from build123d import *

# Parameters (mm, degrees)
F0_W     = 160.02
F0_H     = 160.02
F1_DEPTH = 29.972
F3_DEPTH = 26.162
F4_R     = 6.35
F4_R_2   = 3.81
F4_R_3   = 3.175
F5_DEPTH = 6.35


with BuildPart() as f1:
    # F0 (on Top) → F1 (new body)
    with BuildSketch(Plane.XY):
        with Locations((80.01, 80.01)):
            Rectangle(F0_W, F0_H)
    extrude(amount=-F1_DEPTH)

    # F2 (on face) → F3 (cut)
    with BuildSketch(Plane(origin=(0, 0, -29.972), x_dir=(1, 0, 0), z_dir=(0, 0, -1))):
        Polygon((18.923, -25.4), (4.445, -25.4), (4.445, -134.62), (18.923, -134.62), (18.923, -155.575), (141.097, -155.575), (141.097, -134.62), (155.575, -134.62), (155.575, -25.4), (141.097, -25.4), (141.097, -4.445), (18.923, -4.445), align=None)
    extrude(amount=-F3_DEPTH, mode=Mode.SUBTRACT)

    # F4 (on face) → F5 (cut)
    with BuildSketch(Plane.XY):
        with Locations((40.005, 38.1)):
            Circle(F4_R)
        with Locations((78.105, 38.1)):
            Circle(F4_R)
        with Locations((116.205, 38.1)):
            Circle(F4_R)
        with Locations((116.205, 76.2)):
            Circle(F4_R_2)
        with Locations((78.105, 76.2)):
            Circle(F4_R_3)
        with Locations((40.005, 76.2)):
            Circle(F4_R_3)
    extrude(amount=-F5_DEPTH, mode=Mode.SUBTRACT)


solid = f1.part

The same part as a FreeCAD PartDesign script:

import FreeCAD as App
import Part
import Sketcher
Q = App.Units.Quantity

doc = App.newDocument("Part")
body = doc.addObject("PartDesign::Body", "Body")

sketch1 = body.newObject("Sketcher::SketchObject", "Sketch")
sketch1.AttachmentSupport = (doc.getObject("XY_Plane"), [""])
sketch1.MapMode = "FlatFace"
sketch1.addGeometry([
    Part.LineSegment(App.Vector(0, 160.02, 0), App.Vector(0, 0, 0)),
    Part.LineSegment(App.Vector(0, 0, 0), App.Vector(160.02, 0, 0)),
    Part.LineSegment(App.Vector(160.02, 0, 0), App.Vector(160.02, 160.02, 0)),
    Part.LineSegment(App.Vector(160.02, 160.02, 0), App.Vector(0, 160.02, 0)),
], False)
sketch1.addConstraint([
    Sketcher.Constraint("Coincident", 0, 2, 1, 1),
    Sketcher.Constraint("Coincident", 1, 2, 2, 1),
    Sketcher.Constraint("Coincident", 2, 2, 3, 1),
    Sketcher.Constraint("Coincident", 3, 2, 0, 1),
    Sketcher.Constraint("Vertical", 0),
    Sketcher.Constraint("Horizontal", 1),
    Sketcher.Constraint("Vertical", 2),
    Sketcher.Constraint("Horizontal", 3),
    Sketcher.Constraint("Coincident", 0, 2, -1, 1),
    Sketcher.Constraint("Equal", 3, 0),
    Sketcher.Constraint("DistanceX", 1, 1, 1, 2, Q("6.3 in")),
])
pad1 = body.newObject("PartDesign::Pad", "Pad")
pad1.Profile = sketch1
pad1.Length = Q("1.18 in")
pad1.Reversed = True

sketch2 = body.newObject("Sketcher::SketchObject", "Sketch001")
sketch2.AttachmentSupport = (doc.getObject("XY_Plane"), [""])
sketch2.MapMode = "FlatFace"
sketch2.AttachmentOffset = App.Placement(App.Vector(0, 0, -1.18 * 25.4), App.Rotation())
sketch2.addGeometry([
    Part.LineSegment(App.Vector(18.923, 25.4, 0), App.Vector(4.445, 25.4, 0)),
    Part.LineSegment(App.Vector(4.445, 25.4, 0), App.Vector(4.445, 134.62, 0)),
    Part.LineSegment(App.Vector(4.445, 134.62, 0), App.Vector(18.923, 134.62, 0)),
    Part.LineSegment(App.Vector(18.923, 134.62, 0), App.Vector(18.923, 155.575, 0)),
    Part.LineSegment(App.Vector(18.923, 155.575, 0), App.Vector(141.097, 155.575, 0)),
    Part.LineSegment(App.Vector(141.097, 155.575, 0), App.Vector(141.097, 134.62, 0)),
    Part.LineSegment(App.Vector(141.097, 134.62, 0), App.Vector(155.575, 134.62, 0)),
    Part.LineSegment(App.Vector(155.575, 134.62, 0), App.Vector(155.575, 25.4, 0)),
    Part.LineSegment(App.Vector(155.575, 25.4, 0), App.Vector(141.097, 25.4, 0)),
    Part.LineSegment(App.Vector(141.097, 25.4, 0), App.Vector(141.097, 4.445, 0)),
    Part.LineSegment(App.Vector(141.097, 4.445, 0), App.Vector(18.923, 4.445, 0)),
    Part.LineSegment(App.Vector(18.923, 4.445, 0), App.Vector(18.923, 25.4, 0)),
], False)
sketch2.addConstraint([
    Sketcher.Constraint("Coincident", 0, 2, 1, 1),
    Sketcher.Constraint("Coincident", 1, 2, 2, 1),
    Sketcher.Constraint("Coincident", 2, 2, 3, 1),
    Sketcher.Constraint("Coincident", 3, 2, 4, 1),
    Sketcher.Constraint("Coincident", 4, 2, 5, 1),
    Sketcher.Constraint("Coincident", 5, 2, 6, 1),
    Sketcher.Constraint("Coincident", 6, 2, 7, 1),
    Sketcher.Constraint("Coincident", 7, 2, 8, 1),
    Sketcher.Constraint("Coincident", 8, 2, 9, 1),
    Sketcher.Constraint("Coincident", 9, 2, 10, 1),
    Sketcher.Constraint("Coincident", 10, 2, 11, 1),
    Sketcher.Constraint("Coincident", 11, 2, 0, 1),
    Sketcher.Constraint("Horizontal", 0),
    Sketcher.Constraint("Vertical", 1),
    Sketcher.Constraint("Horizontal", 2),
    Sketcher.Constraint("Vertical", 3),
    Sketcher.Constraint("Horizontal", 4),
    Sketcher.Constraint("Vertical", 5),
    Sketcher.Constraint("Horizontal", 6),
    Sketcher.Constraint("Vertical", 7),
    Sketcher.Constraint("Horizontal", 8),
    Sketcher.Constraint("Vertical", 9),
    Sketcher.Constraint("Horizontal", 10),
    Sketcher.Constraint("Vertical", 11),
    Sketcher.Constraint("Horizontal", 2, 2, 5, 2),
    Sketcher.Constraint("Horizontal", 0, 2, 7, 2),
    Sketcher.Constraint("Vertical", 5, 2, 8, 2),
    Sketcher.Constraint("Vertical", 3, 2, 10, 2),
    Sketcher.Constraint("Equal", 2, 6),
    Sketcher.Constraint("Equal", 5, 9),
    Sketcher.Constraint("DistanceY", 1, 1, 1, 2, Q("4.3 in")),
    Sketcher.Constraint("DistanceY", -1, 1, 0, 2, Q("1 in")),
    Sketcher.Constraint("DistanceX", 0, 2, 0, 1, Q("0.57 in")),
    Sketcher.Constraint("DistanceX", 4, 1, 4, 2, Q("4.81 in")),
    Sketcher.Constraint("DistanceY", 3, 1, 3, 2, Q("0.825 in")),
    Sketcher.Constraint("DistanceX", -1, 1, 0, 2, Q("0.175 in")),
])
pocket1 = body.newObject("PartDesign::Pocket", "Pocket")
pocket1.Profile = sketch2
pocket1.Length = Q("1.03 in")
pocket1.Reversed = True

sketch3 = body.newObject("Sketcher::SketchObject", "Sketch002")
sketch3.AttachmentSupport = (doc.getObject("XY_Plane"), [""])
sketch3.MapMode = "FlatFace"
sketch3.addGeometry([
    Part.Circle(App.Vector(40.005, 38.1, 0), App.Vector(0, 0, 1), 6.35),
    Part.Circle(App.Vector(78.105, 38.1, 0), App.Vector(0, 0, 1), 6.35),
    Part.Circle(App.Vector(116.205, 38.1, 0), App.Vector(0, 0, 1), 6.35),
    Part.Circle(App.Vector(116.205, 76.2, 0), App.Vector(0, 0, 1), 3.81),
    Part.Circle(App.Vector(78.105, 76.2, 0), App.Vector(0, 0, 1), 3.175),
    Part.Circle(App.Vector(40.005, 76.2, 0), App.Vector(0, 0, 1), 3.175),
], False)
sketch3.addConstraint([
    Sketcher.Constraint("Equal", 0, 1),
    Sketcher.Constraint("Equal", 1, 2),
    Sketcher.Constraint("Equal", 4, 5),
    Sketcher.Constraint("Horizontal", 0, 3, 1, 3),
    Sketcher.Constraint("Horizontal", 1, 3, 2, 3),
    Sketcher.Constraint("Horizontal", 3, 3, 4, 3),
    Sketcher.Constraint("Horizontal", 4, 3, 5, 3),
    Sketcher.Constraint("Vertical", 2, 3, 3, 3),
    Sketcher.Constraint("Vertical", 1, 3, 4, 3),
    Sketcher.Constraint("Vertical", 0, 3, 5, 3),
    Sketcher.Constraint("Diameter", 0, Q("0.5 in")),
    Sketcher.Constraint("Diameter", 3, Q("0.3 in")),
    Sketcher.Constraint("Diameter", 4, Q("0.25 in")),
    Sketcher.Constraint("DistanceY", -1, 1, 3, 3, Q("3 in")),
    Sketcher.Constraint("DistanceX", 0, 3, 2, 3, Q("3 in")),
    Sketcher.Constraint("DistanceY", -1, 1, 0, 3, Q("1.5 in")),
    Sketcher.Constraint("DistanceX", 0, 3, 1, 3, Q("1.5 in")),
    Sketcher.Constraint("DistanceX", -1, 1, 0, 3, Q("1.575 in")),
])
pocket2 = body.newObject("PartDesign::Pocket", "Pocket001")
pocket2.Profile = sketch3
pocket2.Length = Q("0.25 in")

doc.recompute()
